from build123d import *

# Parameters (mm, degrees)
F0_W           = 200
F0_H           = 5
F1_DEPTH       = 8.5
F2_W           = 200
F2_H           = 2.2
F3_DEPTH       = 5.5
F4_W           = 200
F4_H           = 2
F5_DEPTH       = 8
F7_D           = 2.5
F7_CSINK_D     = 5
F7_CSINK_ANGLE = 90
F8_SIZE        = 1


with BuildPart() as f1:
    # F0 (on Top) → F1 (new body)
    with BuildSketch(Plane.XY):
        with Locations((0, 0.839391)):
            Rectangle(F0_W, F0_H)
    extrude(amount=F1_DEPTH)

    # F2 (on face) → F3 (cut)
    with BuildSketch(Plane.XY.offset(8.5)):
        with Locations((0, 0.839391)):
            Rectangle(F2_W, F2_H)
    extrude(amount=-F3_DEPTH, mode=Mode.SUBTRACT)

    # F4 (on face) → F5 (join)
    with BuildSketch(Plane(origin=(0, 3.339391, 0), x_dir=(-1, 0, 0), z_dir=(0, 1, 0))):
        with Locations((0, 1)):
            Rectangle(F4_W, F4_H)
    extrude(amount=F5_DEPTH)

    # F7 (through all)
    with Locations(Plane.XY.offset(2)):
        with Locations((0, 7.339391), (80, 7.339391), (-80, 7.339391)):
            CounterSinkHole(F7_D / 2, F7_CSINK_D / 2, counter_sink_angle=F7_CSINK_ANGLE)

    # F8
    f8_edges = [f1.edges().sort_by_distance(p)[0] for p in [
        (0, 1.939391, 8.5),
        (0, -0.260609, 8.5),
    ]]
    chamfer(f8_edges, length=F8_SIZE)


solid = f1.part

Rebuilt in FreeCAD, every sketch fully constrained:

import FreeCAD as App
import Part
import Sketcher

V = App.Vector
Q = App.Units.Quantity


def edges_at(feature, points):
    """Names of the edges that pass closest to the given points."""
    edges = feature.Shape.Edges
    near = lambda p: min(range(len(edges)), key=lambda i: edges[i].distToShape(Part.Vertex(*p))[0])
    return sorted({f"Edge{near(p) + 1}" for p in points})

doc = App.newDocument("Part")
params = doc.addObject("Spreadsheet::Sheet", "Params")
for row, (alias, value) in enumerate([
    ("sketch1_width", "200 mm"),
    ("sketch1_height", "5 mm"),
    ("pad1_length", "8.5 mm"),
    ("sketch2_width", "200 mm"),
    ("sketch2_height", "2.2 mm"),
    ("pocket1_length", "5.5 mm"),
    ("sketch3_width", "200 mm"),
    ("sketch3_height", "2 mm"),
    ("pad2_length", "8 mm"),
    ("sketch4_diameter", "2.5 mm"),
    ("hole_diameter", "2.5 mm"),
    ("hole_csink_diameter", "5 mm"),
    ("chamfer_size", "1 mm"),
], start=1):
    params.set(f"A{row}", alias)
    params.set(f"B{row}", "=" + value)
    params.setAlias(f"B{row}", alias)

body = doc.addObject("PartDesign::Body", "Body")

# Sketch on XY plane
sketch1 = body.newObject("Sketcher::SketchObject", "Sketch")
sketch1.AttachmentSupport = (doc.getObject("XY_Plane"), [""])
sketch1.MapMode = "FlatFace"
sketch1.addGeometry(Part.LineSegment(V(-100, 3, 0), V(-100, -2, 0)), False)
sketch1.addGeometry(Part.LineSegment(V(-100, -2, 0), V(100, -2, 0)), False)
sketch1.addGeometry(Part.LineSegment(V(100, -2, 0), V(100, 3, 0)), False)
sketch1.addGeometry(Part.LineSegment(V(100, 3, 0), V(-100, 3, 0)), False)
sketch1.addConstraint(Sketcher.Constraint("Coincident", 0, 2, 1, 1))
sketch1.addConstraint(Sketcher.Constraint("Coincident", 1, 2, 2, 1))
sketch1.addConstraint(Sketcher.Constraint("Coincident", 2, 2, 3, 1))
sketch1.addConstraint(Sketcher.Constraint("Coincident", 3, 2, 0, 1))
sketch1.addConstraint(Sketcher.Constraint("Vertical", 0))
sketch1.addConstraint(Sketcher.Constraint("Horizontal", 1))
sketch1.addConstraint(Sketcher.Constraint("Vertical", 2))
sketch1.addConstraint(Sketcher.Constraint("Horizontal", 3))
sketch1.addConstraint(Sketcher.Constraint("DistanceX", 1, 1, 1, 2, Q("200 mm")))
sketch1.addConstraint(Sketcher.Constraint("DistanceY", 0, 2, 0, 1, Q("5 mm")))
sketch1.addConstraint(Sketcher.Constraint("DistanceX", 0, 2, -1, 1, Q("100 mm")))
sketch1.addConstraint(Sketcher.Constraint("DistanceY", 0, 2, -1, 1, Q("1.660609 mm")))
sketch1.setExpression("Constraints[8]", "Params.sketch1_width")
sketch1.setExpression("Constraints[9]", "Params.sketch1_height")
pad1 = body.newObject("PartDesign::Pad", "Pad")
pad1.Profile = sketch1
pad1.setExpression("Length", "Params.pad1_length")

# Sketch on XY plane
sketch2 = body.newObject("Sketcher::SketchObject", "Sketch001")
sketch2.AttachmentSupport = (doc.getObject("XY_Plane"), [""])
sketch2.MapMode = "FlatFace"
sketch2.AttachmentOffset = App.Placement(V(0, 0, 8.5), App.Rotation())
sketch2.addGeometry(Part.LineSegment(V(-100, 1.9, 0), V(-100, -0.3, 0)), False)
sketch2.addGeometry(Part.LineSegment(V(-100, -0.3, 0), V(100, -0.3, 0)), False)
sketch2.addGeometry(Part.LineSegment(V(100, -0.3, 0), V(100, 1.9, 0)), False)
sketch2.addGeometry(Part.LineSegment(V(100, 1.9, 0), V(-100, 1.9, 0)), False)
sketch2.addConstraint(Sketcher.Constraint("Coincident", 0, 2, 1, 1))
sketch2.addConstraint(Sketcher.Constraint("Coincident", 1, 2, 2, 1))
sketch2.addConstraint(Sketcher.Constraint("Coincident", 2, 2, 3, 1))
sketch2.addConstraint(Sketcher.Constraint("Coincident", 3, 2, 0, 1))
sketch2.addConstraint(Sketcher.Constraint("Vertical", 0))
sketch2.addConstraint(Sketcher.Constraint("Horizontal", 1))
sketch2.addConstraint(Sketcher.Constraint("Vertical", 2))
sketch2.addConstraint(Sketcher.Constraint("Horizontal", 3))
sketch2.addConstraint(Sketcher.Constraint("DistanceX", 1, 1, 1, 2, Q("200 mm")))
sketch2.addConstraint(Sketcher.Constraint("DistanceY", 0, 2, 0, 1, Q("2.2 mm")))
sketch2.addConstraint(Sketcher.Constraint("DistanceX", 0, 2, -1, 1, Q("100 mm")))
sketch2.addConstraint(Sketcher.Constraint("DistanceY", 0, 2, -1, 1, Q("0.260609 mm")))
sketch2.setExpression("Constraints[8]", "Params.sketch2_width")
sketch2.setExpression("Constraints[9]", "Params.sketch2_height")
pocket1 = body.newObject("PartDesign::Pocket", "Pocket")
pocket1.Profile = sketch2
pocket1.setExpression("Length", "Params.pocket1_length")

# Sketch on XZ plane
sketch3 = body.newObject("Sketcher::SketchObject", "Sketch002")
sketch3.AttachmentSupport = (doc.getObject("XZ_Plane"), [""])
sketch3.MapMode = "FlatFace"
sketch3.AttachmentOffset = App.Placement(V(0, 0, -3.339391), App.Rotation())
sketch3.addGeometry(Part.LineSegment(V(100, 2, 0), V(100, 0, 0)), False)
sketch3.addGeometry(Part.LineSegment(V(100, 0, 0), V(-100, 0, 0)), False)
sketch3.addGeometry(Part.LineSegment(V(-100, 0, 0), V(-100, 2, 0)), False)
sketch3.addGeometry(Part.LineSegment(V(-100, 2, 0), V(100, 2, 0)), False)
sketch3.addConstraint(Sketcher.Constraint("Coincident", 0, 2, 1, 1))
sketch3.addConstraint(Sketcher.Constraint("Coincident", 1, 2, 2, 1))
sketch3.addConstraint(Sketcher.Constraint("Coincident", 2, 2, 3, 1))
sketch3.addConstraint(Sketcher.Constraint("Coincident", 3, 2, 0, 1))
sketch3.addConstraint(Sketcher.Constraint("Vertical", 0))
sketch3.addConstraint(Sketcher.Constraint("Horizontal", 1))
sketch3.addConstraint(Sketcher.Constraint("Vertical", 2))
sketch3.addConstraint(Sketcher.Constraint("Horizontal", 3))
sketch3.addConstraint(Sketcher.Constraint("Symmetric", 0, 2, 1, 2, -1, 1))
sketch3.addConstraint(Sketcher.Constraint("DistanceX", 1, 2, 1, 1, Q("200 mm")))
sketch3.addConstraint(Sketcher.Constraint("DistanceY", 0, 2, 0, 1, Q("2 mm")))
sketch3.setExpression("Constraints[9]", "Params.sketch3_width")
sketch3.setExpression("Constraints[10]", "Params.sketch3_height")
pad2 = body.newObject("PartDesign::Pad", "Pad001")
pad2.Profile = sketch3
pad2.setExpression("Length", "Params.pad2_length")
pad2.Reversed = True

# Sketch on XY plane
sketch4 = body.newObject("Sketcher::SketchObject", "Sketch003")
sketch4.AttachmentSupport = (doc.getObject("XY_Plane"), [""])
sketch4.MapMode = "FlatFace"
sketch4.AttachmentOffset = App.Placement(V(0, 0, 2), App.Rotation())
sketch4.addGeometry(Part.Circle(V(0, 7.3, 0), V(0, 0, 1), 1.2), False)
sketch4.addGeometry(Part.Circle(V(80, 7.3, 0), V(0, 0, 1), 1.2), False)
sketch4.addGeometry(Part.Circle(V(-80, 7.3, 0), V(0, 0, 1), 1.2), False)
sketch4.addConstraint(Sketcher.Constraint("Equal", 0, 1))
sketch4.addConstraint(Sketcher.Constraint("Equal", 1, 2))
sketch4.addConstraint(Sketcher.Constraint("Symmetric", 1, 3, 2, 3, -2))
sketch4.addConstraint(Sketcher.Constraint("PointOnObject", 0, 3, -2))
sketch4.addConstraint(Sketcher.Constraint("Horizontal", 0, 3, 1, 3))
sketch4.addConstraint(Sketcher.Constraint("Diameter", 0, Q("2.5 mm")))
sketch4.addConstraint(Sketcher.Constraint("DistanceX", -1, 1, 1, 3, Q("80 mm")))
sketch4.addConstraint(Sketcher.Constraint("DistanceY", -1, 1, 0, 3, Q("7.339391 mm")))
sketch4.setExpression("Constraints[5]", "Params.sketch4_diameter")
doc.recompute()
hole = body.newObject("PartDesign::Hole", "Hole")
hole.Profile = sketch4
hole.ThreadType = "None"
hole.setExpression("Diameter", "Params.hole_diameter")
hole.DepthType = "ThroughAll"
hole.HoleCutType = "Countersink"
hole.setExpression("HoleCutDiameter", "Params.hole_csink_diameter")
hole.HoleCutCountersinkAngle = 90
doc.recompute()

chamfer = body.newObject("PartDesign::Chamfer", "Chamfer")
chamfer.Base = (hole, edges_at(hole, [(0, 1.939, 8.5), (0, -0.261, 8.5)]))
chamfer.setExpression("Size", "Params.chamfer_size")

doc.recompute()
